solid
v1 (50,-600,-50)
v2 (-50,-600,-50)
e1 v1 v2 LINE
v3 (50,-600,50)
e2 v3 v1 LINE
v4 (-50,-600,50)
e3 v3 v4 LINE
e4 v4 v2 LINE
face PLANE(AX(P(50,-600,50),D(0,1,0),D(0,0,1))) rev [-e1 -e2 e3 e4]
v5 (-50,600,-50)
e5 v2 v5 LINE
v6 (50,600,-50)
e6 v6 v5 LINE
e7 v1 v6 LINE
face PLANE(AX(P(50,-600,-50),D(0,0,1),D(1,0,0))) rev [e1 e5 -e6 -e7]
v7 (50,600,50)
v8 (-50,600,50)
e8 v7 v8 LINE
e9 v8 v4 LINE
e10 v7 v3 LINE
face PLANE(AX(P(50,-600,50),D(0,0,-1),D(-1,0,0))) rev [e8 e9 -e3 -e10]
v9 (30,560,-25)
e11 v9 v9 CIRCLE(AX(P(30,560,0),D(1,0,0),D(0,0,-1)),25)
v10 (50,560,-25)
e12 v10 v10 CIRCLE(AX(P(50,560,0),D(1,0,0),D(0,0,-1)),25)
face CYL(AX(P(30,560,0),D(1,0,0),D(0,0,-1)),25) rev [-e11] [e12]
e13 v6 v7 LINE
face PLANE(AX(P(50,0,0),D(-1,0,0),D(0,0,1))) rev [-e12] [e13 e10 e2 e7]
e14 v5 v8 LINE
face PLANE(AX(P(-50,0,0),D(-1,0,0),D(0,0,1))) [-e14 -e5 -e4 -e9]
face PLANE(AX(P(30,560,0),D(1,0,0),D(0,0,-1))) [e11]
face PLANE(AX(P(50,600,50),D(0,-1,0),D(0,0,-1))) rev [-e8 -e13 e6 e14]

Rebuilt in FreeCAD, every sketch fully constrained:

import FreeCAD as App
import Part
import Sketcher
from FreeCAD import Vector

doc = App.newDocument("Part")
body = doc.addObject("PartDesign::Body", "Body")

sketch1 = doc.addObject("Sketcher::SketchObject", "Sketch")
body.addObject(sketch1)
sketch1.AttachmentSupport = (doc.YZ_Plane, [""])
sketch1.MapMode = "FlatFace"
sketch1.addGeometry([
    Part.LineSegment(Vector(600, 50, 0), Vector(-600, 50, 0)),
    Part.LineSegment(Vector(-600, 50, 0), Vector(-600, -50, 0)),
    Part.LineSegment(Vector(-600, -50, 0), Vector(600, -50, 0)),
    Part.LineSegment(Vector(600, -50, 0), Vector(600, 50, 0)),
], False)
sketch1.addConstraint([
    Sketcher.Constraint("Coincident", 0, 2, 1, 1),
    Sketcher.Constraint("Coincident", 1, 2, 2, 1),
    Sketcher.Constraint("Coincident", 2, 2, 3, 1),
    Sketcher.Constraint("Coincident", 3, 2, 0, 1),
    Sketcher.Constraint("Horizontal", 0),
    Sketcher.Constraint("Vertical", 1),
    Sketcher.Constraint("Horizontal", 2),
    Sketcher.Constraint("Vertical", 3),
    Sketcher.Constraint("Symmetric", 0, 2, 2, 2, -1, 1),
    Sketcher.Constraint("DistanceX", 0, 2, 0, 1, 1200.0),
    Sketcher.Constraint("DistanceY", 1, 2, 1, 1, 100.0),
])
pad1 = doc.addObject("PartDesign::Pad", "Pad")
body.addObject(pad1)
pad1.Profile = sketch1
pad1.Length = 100
pad1.Midplane = True

sketch2 = doc.addObject("Sketcher::SketchObject", "Sketch001")
body.addObject(sketch2)
sketch2.AttachmentSupport = (doc.YZ_Plane, [""])
sketch2.MapMode = "FlatFace"
sketch2.AttachmentOffset = App.Placement(Vector(0, 0, 50), App.Rotation())
sketch2.addGeometry(Part.Circle(Vector(560, 0, 0), Vector(0, 0, 1), 25), False)
sketch2.addConstraint([
    Sketcher.Constraint("PointOnObject", 0, 3, -1),
    Sketcher.Constraint("Diameter", 0, 50.0),
    Sketcher.Constraint("DistanceX", -1, 1, 0, 3, 560.0),
])
pocket1 = doc.addObject("PartDesign::Pocket", "Pocket")
body.addObject(pocket1)
pocket1.Profile = sketch2
pocket1.Length = 20

doc.recompute()
